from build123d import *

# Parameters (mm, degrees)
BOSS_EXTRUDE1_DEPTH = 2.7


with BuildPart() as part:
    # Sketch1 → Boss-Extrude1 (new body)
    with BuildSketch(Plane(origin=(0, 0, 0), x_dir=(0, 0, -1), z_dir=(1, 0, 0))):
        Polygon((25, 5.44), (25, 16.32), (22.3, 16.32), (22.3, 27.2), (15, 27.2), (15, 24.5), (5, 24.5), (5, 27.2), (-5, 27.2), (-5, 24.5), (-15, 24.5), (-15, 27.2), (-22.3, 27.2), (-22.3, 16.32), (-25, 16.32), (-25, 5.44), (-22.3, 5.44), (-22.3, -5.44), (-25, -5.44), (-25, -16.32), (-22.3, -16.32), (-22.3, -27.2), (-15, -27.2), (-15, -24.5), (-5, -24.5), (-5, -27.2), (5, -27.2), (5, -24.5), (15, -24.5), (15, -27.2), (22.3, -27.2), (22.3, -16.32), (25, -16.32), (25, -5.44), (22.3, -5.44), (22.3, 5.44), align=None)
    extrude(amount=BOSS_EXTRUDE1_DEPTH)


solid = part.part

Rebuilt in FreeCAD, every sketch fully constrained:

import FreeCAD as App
import Part
import Sketcher

doc = App.newDocument("Part")
params = doc.addObject("Spreadsheet::Sheet", "Params")
for row, (alias, value) in enumerate([
    ("sketch1_height", "10 mm"),
    ("sketch1_width", "2.7 mm"),
    ("sketch1_height2", "7.3 mm"),
    ("sketch1_width2", "10.88 mm"),
    ("pad1_length", "2.7 mm"),
], start=1):
    params.set(f"A{row}", alias)
    params.set(f"B{row}", "=" + value)
    params.setAlias(f"B{row}", alias)

body = doc.addObject("PartDesign::Body", "Body")

# Sketch on YZ plane
sketch1 = body.newObject("Sketcher::SketchObject", "Sketch")
sketch1.AttachmentSupport = (doc.getObject("YZ_Plane"), [""])
sketch1.MapMode = "FlatFace"
sketch1.addGeometry([
    Part.LineSegment(App.Vector(5.4, -25, 0), App.Vector(16.3, -25, 0)),  # 0
    Part.LineSegment(App.Vector(16.3, -25, 0), App.Vector(16.3, -22.3, 0)),  # 1
    Part.LineSegment(App.Vector(16.3, -22.3, 0), App.Vector(27.2, -22.3, 0)),  # 2
    Part.LineSegment(App.Vector(27.2, -22.3, 0), App.Vector(27.2, -15, 0)),  # 3
    Part.LineSegment(App.Vector(27.2, -15, 0), App.Vector(24.5, -15, 0)),  # 4
    Part.LineSegment(App.Vector(24.5, -15, 0), App.Vector(24.5, -5, 0)),  # 5
    Part.LineSegment(App.Vector(24.5, -5, 0), App.Vector(27.2, -5, 0)),  # 6
    Part.LineSegment(App.Vector(27.2, -5, 0), App.Vector(27.2, 5, 0)),  # 7
    Part.LineSegment(App.Vector(27.2, 5, 0), App.Vector(24.5, 5, 0)),  # 8
    Part.LineSegment(App.Vector(24.5, 5, 0), App.Vector(24.5, 15, 0)),  # 9
    Part.LineSegment(App.Vector(24.5, 15, 0), App.Vector(27.2, 15, 0)),  # 10
    Part.LineSegment(App.Vector(27.2, 15, 0), App.Vector(27.2, 22.3, 0)),  # 11
    Part.LineSegment(App.Vector(27.2, 22.3, 0), App.Vector(16.3, 22.3, 0)),  # 12
    Part.LineSegment(App.Vector(16.3, 22.3, 0), App.Vector(16.3, 25, 0)),  # 13
    Part.LineSegment(App.Vector(16.3, 25, 0), App.Vector(5.4, 25, 0)),  # 14
    Part.LineSegment(App.Vector(5.4, 25, 0), App.Vector(5.4, 22.3, 0)),  # 15
    Part.LineSegment(App.Vector(5.4, 22.3, 0), App.Vector(-5.4, 22.3, 0)),  # 16
    Part.LineSegment(App.Vector(-5.4, 22.3, 0), App.Vector(-5.4, 25, 0)),  # 17
    Part.LineSegment(App.Vector(-5.4, 25, 0), App.Vector(-16.3, 25, 0)),  # 18
    Part.LineSegment(App.Vector(-16.3, 25, 0), App.Vector(-16.3, 22.3, 0)),  # 19
    Part.LineSegment(App.Vector(-16.3, 22.3, 0), App.Vector(-27.2, 22.3, 0)),  # 20
    Part.LineSegment(App.Vector(-27.2, 22.3, 0), App.Vector(-27.2, 15, 0)),  # 21
    Part.LineSegment(App.Vector(-27.2, 15, 0), App.Vector(-24.5, 15, 0)),  # 22
    Part.LineSegment(App.Vector(-24.5, 15, 0), App.Vector(-24.5, 5, 0)),  # 23
    Part.LineSegment(App.Vector(-24.5, 5, 0), App.Vector(-27.2, 5, 0)),  # 24
    Part.LineSegment(App.Vector(-27.2, 5, 0), App.Vector(-27.2, -5, 0)),  # 25
    Part.LineSegment(App.Vector(-27.2, -5, 0), App.Vector(-24.5, -5, 0)),  # 26
    Part.LineSegment(App.Vector(-24.5, -5, 0), App.Vector(-24.5, -15, 0)),  # 27
    Part.LineSegment(App.Vector(-24.5, -15, 0), App.Vector(-27.2, -15, 0)),  # 28
    Part.LineSegment(App.Vector(-27.2, -15, 0), App.Vector(-27.2, -22.3, 0)),  # 29
    Part.LineSegment(App.Vector(-27.2, -22.3, 0), App.Vector(-16.3, -22.3, 0)),  # 30
    Part.LineSegment(App.Vector(-16.3, -22.3, 0), App.Vector(-16.3, -25, 0)),  # 31
    Part.LineSegment(App.Vector(-16.3, -25, 0), App.Vector(-5.4, -25, 0)),  # 32
    Part.LineSegment(App.Vector(-5.4, -25, 0), App.Vector(-5.4, -22.3, 0)),  # 33
    Part.LineSegment(App.Vector(-5.4, -22.3, 0), App.Vector(5.4, -22.3, 0)),  # 34
    Part.LineSegment(App.Vector(5.4, -22.3, 0), App.Vector(5.4, -25, 0)),  # 35
], False)
sketch1.addConstraint([
    Sketcher.Constraint("Coincident", 0, 2, 1, 1),
    Sketcher.Constraint("Coincident", 1, 2, 2, 1),
    Sketcher.Constraint("Coincident", 2, 2, 3, 1),
    Sketcher.Constraint("Coincident", 3, 2, 4, 1),
    Sketcher.Constraint("Coincident", 4, 2, 5, 1),
    Sketcher.Constraint("Coincident", 5, 2, 6, 1),
    Sketcher.Constraint("Coincident", 6, 2, 7, 1),
    Sketcher.Constraint("Coincident", 7, 2, 8, 1),
    Sketcher.Constraint("Coincident", 8, 2, 9, 1),
    Sketcher.Constraint("Coincident", 9, 2, 10, 1),
    Sketcher.Constraint("Coincident", 10, 2, 11, 1),
    Sketcher.Constraint("Coincident", 11, 2, 12, 1),
    Sketcher.Constraint("Coincident", 12, 2, 13, 1),
    Sketcher.Constraint("Coincident", 13, 2, 14, 1),
    Sketcher.Constraint("Coincident", 14, 2, 15, 1),
    Sketcher.Constraint("Coincident", 15, 2, 16, 1),
    Sketcher.Constraint("Coincident", 16, 2, 17, 1),
    Sketcher.Constraint("Coincident", 17, 2, 18, 1),
    Sketcher.Constraint("Coincident", 18, 2, 19, 1),
    Sketcher.Constraint("Coincident", 19, 2, 20, 1),
    Sketcher.Constraint("Coincident", 20, 2, 21, 1),
    Sketcher.Constraint("Coincident", 21, 2, 22, 1),
    Sketcher.Constraint("Coincident", 22, 2, 23, 1),
    Sketcher.Constraint("Coincident", 23, 2, 24, 1),
    Sketcher.Constraint("Coincident", 24, 2, 25, 1),
    Sketcher.Constraint("Coincident", 25, 2, 26, 1),
    Sketcher.Constraint("Coincident", 26, 2, 27, 1),
    Sketcher.Constraint("Coincident", 27, 2, 28, 1),
    Sketcher.Constraint("Coincident", 28, 2, 29, 1),
    Sketcher.Constraint("Coincident", 29, 2, 30, 1),
    Sketcher.Constraint("Coincident", 30, 2, 31, 1),
    Sketcher.Constraint("Coincident", 31, 2, 32, 1),
    Sketcher.Constraint("Coincident", 32, 2, 33, 1),
    Sketcher.Constraint("Coincident", 33, 2, 34, 1),
    Sketcher.Constraint("Coincident", 34, 2, 35, 1),
    Sketcher.Constraint("Coincident", 35, 2, 0, 1),
    Sketcher.Constraint("Horizontal", 0),
    Sketcher.Constraint("Vertical", 1),
    Sketcher.Constraint("Horizontal", 2),
    Sketcher.Constraint("Vertical", 3),
    Sketcher.Constraint("Horizontal", 4),
    Sketcher.Constraint("Vertical", 5),
    Sketcher.Constraint("Horizontal", 6),
    Sketcher.Constraint("Vertical", 7),
    Sketcher.Constraint("Horizontal", 8),
    Sketcher.Constraint("Vertical", 9),
    Sketcher.Constraint("Horizontal", 10),
    Sketcher.Constraint("Vertical", 11),
    Sketcher.Constraint("Horizontal", 12),
    Sketcher.Constraint("Vertical", 13),
    Sketcher.Constraint("Horizontal", 14),
    Sketcher.Constraint("Vertical", 15),
    Sketcher.Constraint("Horizontal", 16),
    Sketcher.Constraint("Vertical", 17),
    Sketcher.Constraint("Horizontal", 18),
    Sketcher.Constraint("Vertical", 19),
    Sketcher.Constraint("Horizontal", 20),
    Sketcher.Constraint("Vertical", 21),
    Sketcher.Constraint("Horizontal", 22),
    Sketcher.Constraint("Vertical", 23),
    Sketcher.Constraint("Horizontal", 24),
    Sketcher.Constraint("Vertical", 25),
    Sketcher.Constraint("Horizontal", 26),
    Sketcher.Constraint("Vertical", 27),
    Sketcher.Constraint("Horizontal", 28),
    Sketcher.Constraint("Vertical", 29),
    Sketcher.Constraint("Horizontal", 30),
    Sketcher.Constraint("Vertical", 31),
    Sketcher.Constraint("Horizontal", 32),
    Sketcher.Constraint("Vertical", 33),
    Sketcher.Constraint("Horizontal", 34),
    Sketcher.Constraint("Vertical", 35),
    Sketcher.Constraint("Symmetric", 0, 2, 18, 2, -1, 1),
    Sketcher.Constraint("Symmetric", 2, 2, 20, 2, -1, 1),
    Sketcher.Constraint("Symmetric", 4, 2, 22, 2, -1, 1),
    Sketcher.Constraint("Symmetric", 6, 2, 24, 2, -1, 1),
    Sketcher.Constraint("Symmetric", 8, 2, 26, 2, -1, 1),
    Sketcher.Constraint("Symmetric", 10, 2, 28, 2, -1, 1),
    Sketcher.Constraint("Symmetric", 12, 2, 30, 2, -1, 1),
    Sketcher.Constraint("Symmetric", 14, 2, 32, 2, -1, 1),
    Sketcher.Constraint("Symmetric", 16, 2, 34, 2, -1, 1),
    Sketcher.Constraint("Symmetric", 14, 2, 17, 2, -2),
    Sketcher.Constraint("Symmetric", 12, 2, 19, 2, -2),
    Sketcher.Constraint("Symmetric", 10, 2, 21, 2, -2),
    Sketcher.Constraint("Symmetric", 8, 2, 23, 2, -2),
    Sketcher.Constraint("Horizontal", 12, 2, 15, 2),
    Sketcher.Constraint("Vertical", 3, 2, 6, 2),
    Sketcher.Constraint("Equal", 0, 2),
    Sketcher.Constraint("Equal", 14, 16),
    Sketcher.Constraint("Equal", 28, 1),
    Sketcher.Constraint("Equal", 5, 7),
    Sketcher.Constraint("DistanceY", 5, 1, 5, 2, 10.0),
    Sketcher.Constraint("DistanceX", 4, 2, 4, 1, 2.7),
    Sketcher.Constraint("DistanceY", 3, 1, 3, 2, 7.3),
    Sketcher.Constraint("DistanceX", 0, 1, 0, 2, 10.88),
])
sketch1.setExpression("Constraints[91]", "Params.sketch1_height")
sketch1.setExpression("Constraints[92]", "Params.sketch1_width")
sketch1.setExpression("Constraints[93]", "Params.sketch1_height2")
sketch1.setExpression("Constraints[94]", "Params.sketch1_width2")
pad1 = body.newObject("PartDesign::Pad", "Pad")
pad1.Profile = sketch1
pad1.setExpression("Length", "Params.pad1_length")

doc.recompute()
